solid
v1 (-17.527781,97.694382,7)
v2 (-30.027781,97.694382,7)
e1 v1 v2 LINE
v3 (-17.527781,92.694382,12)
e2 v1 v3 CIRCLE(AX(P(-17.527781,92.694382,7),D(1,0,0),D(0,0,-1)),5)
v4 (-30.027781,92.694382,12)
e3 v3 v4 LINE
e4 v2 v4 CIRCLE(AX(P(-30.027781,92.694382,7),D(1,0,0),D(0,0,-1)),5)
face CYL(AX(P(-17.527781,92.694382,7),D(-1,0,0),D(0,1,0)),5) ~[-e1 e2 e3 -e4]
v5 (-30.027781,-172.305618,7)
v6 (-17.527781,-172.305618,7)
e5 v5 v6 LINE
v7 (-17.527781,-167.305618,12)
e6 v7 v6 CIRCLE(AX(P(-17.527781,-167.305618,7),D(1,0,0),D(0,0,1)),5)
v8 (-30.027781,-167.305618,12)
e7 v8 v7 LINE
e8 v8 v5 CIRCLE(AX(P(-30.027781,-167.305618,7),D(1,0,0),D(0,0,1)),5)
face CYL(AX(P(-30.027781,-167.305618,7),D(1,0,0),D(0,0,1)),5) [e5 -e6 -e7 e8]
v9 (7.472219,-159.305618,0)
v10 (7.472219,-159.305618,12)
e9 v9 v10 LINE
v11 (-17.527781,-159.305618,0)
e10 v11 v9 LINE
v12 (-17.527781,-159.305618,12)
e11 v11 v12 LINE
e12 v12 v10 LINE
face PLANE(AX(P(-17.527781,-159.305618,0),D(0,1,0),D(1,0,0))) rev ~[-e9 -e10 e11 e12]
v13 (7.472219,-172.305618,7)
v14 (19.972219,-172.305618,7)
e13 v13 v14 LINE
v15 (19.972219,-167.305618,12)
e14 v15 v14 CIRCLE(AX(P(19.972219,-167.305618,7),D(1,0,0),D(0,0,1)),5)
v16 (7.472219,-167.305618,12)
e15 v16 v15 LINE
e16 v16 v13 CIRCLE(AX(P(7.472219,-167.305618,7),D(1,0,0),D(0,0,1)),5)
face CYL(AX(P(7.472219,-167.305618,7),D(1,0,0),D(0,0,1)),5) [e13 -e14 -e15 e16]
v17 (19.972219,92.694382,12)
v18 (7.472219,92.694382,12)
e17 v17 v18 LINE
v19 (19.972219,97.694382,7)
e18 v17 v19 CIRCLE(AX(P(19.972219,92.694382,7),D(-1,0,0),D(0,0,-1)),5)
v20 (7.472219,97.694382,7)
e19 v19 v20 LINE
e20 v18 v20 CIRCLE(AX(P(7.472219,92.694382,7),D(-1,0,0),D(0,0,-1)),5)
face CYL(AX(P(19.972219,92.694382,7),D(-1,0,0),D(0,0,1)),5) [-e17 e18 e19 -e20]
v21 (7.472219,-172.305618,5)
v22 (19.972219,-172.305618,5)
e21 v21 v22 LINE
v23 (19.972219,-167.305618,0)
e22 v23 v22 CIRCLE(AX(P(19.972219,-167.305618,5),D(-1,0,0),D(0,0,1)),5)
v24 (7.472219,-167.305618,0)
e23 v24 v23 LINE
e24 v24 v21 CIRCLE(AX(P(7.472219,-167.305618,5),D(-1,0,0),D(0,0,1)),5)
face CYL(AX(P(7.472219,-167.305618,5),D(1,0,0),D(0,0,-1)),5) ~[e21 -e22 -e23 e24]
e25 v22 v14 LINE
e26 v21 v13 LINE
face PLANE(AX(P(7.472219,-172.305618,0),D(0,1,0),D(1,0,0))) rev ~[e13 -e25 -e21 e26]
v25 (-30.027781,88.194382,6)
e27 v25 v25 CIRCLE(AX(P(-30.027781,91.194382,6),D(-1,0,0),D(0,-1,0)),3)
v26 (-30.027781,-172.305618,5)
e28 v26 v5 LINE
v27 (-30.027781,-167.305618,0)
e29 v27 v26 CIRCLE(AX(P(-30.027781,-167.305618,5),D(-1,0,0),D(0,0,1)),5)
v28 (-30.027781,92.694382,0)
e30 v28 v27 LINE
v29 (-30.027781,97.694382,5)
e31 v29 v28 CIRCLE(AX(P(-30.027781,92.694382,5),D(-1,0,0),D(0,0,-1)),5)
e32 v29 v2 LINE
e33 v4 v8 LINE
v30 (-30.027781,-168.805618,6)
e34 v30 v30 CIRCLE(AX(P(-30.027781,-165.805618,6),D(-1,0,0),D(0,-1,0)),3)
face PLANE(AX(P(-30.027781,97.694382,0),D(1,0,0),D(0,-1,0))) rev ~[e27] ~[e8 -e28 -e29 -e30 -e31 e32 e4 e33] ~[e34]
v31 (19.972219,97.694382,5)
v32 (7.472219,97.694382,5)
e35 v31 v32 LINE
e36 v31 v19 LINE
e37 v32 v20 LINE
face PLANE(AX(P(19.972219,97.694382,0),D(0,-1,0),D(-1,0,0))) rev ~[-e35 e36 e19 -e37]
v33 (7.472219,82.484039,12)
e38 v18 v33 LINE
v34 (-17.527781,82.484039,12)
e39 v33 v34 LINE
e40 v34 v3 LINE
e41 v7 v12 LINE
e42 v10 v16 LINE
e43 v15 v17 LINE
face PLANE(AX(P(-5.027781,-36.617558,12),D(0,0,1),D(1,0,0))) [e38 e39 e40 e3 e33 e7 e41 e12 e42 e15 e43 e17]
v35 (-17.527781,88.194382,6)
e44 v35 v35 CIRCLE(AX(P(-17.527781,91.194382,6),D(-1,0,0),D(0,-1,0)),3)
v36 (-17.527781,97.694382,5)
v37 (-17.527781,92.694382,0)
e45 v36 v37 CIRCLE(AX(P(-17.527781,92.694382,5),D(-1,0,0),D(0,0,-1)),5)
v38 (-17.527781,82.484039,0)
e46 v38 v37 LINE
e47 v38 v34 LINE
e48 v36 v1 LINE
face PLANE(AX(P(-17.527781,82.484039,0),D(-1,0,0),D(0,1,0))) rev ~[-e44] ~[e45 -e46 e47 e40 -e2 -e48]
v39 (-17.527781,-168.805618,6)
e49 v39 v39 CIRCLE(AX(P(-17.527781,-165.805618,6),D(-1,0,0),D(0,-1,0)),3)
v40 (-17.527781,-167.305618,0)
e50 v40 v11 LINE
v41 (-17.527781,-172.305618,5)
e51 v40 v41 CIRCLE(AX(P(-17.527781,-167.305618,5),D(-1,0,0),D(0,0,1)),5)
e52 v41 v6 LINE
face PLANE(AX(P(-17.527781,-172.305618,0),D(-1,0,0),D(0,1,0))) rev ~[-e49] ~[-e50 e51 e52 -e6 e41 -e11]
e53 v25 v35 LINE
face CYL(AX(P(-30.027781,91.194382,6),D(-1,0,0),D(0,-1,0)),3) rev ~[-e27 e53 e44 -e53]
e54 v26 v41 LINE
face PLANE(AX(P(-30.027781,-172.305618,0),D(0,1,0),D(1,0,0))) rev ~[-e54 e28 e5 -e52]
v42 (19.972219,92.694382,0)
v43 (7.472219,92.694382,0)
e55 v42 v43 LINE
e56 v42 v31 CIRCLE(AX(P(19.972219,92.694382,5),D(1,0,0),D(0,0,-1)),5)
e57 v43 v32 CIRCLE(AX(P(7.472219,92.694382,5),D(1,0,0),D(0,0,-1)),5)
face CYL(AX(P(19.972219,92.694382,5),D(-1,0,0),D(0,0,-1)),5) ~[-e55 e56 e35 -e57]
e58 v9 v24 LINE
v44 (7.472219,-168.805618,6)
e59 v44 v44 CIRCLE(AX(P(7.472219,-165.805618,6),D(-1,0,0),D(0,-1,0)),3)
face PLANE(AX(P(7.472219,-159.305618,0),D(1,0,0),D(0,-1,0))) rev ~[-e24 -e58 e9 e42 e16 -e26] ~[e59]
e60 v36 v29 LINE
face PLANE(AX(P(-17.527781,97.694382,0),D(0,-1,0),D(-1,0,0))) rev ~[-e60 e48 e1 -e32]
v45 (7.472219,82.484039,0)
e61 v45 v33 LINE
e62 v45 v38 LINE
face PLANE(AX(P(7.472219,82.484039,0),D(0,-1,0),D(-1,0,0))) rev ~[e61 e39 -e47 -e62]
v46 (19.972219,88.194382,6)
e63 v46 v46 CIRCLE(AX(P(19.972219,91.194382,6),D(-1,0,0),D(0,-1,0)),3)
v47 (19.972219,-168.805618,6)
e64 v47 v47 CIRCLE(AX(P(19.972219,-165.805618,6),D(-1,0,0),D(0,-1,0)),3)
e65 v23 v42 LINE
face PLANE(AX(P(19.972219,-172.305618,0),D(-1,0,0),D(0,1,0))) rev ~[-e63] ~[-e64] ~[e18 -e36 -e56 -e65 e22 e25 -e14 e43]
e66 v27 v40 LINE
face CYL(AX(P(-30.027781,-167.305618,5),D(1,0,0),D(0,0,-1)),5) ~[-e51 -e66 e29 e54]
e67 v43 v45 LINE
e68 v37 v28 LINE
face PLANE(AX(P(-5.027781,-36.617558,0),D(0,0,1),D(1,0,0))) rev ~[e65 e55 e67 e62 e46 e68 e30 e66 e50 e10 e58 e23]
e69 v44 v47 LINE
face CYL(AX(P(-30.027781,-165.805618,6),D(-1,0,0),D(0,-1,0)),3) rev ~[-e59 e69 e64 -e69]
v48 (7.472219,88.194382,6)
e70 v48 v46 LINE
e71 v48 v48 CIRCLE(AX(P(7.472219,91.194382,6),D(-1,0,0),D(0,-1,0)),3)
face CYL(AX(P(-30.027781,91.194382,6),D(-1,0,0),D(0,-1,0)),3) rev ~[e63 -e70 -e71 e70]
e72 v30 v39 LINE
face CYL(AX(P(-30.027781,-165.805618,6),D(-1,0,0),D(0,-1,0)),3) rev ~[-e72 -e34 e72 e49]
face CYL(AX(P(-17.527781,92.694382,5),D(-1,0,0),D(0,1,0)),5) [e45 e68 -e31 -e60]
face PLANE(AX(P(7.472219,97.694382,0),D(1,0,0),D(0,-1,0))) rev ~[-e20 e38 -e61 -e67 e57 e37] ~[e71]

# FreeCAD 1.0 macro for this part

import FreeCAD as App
import Part
import Sketcher
from FreeCAD import Vector
Q = App.Units.Quantity


def edges_at(feature, points):
    """Names of the edges that pass closest to the given points."""
    edges = feature.Shape.Edges
    near = lambda p: min(range(len(edges)), key=lambda i: edges[i].distToShape(Part.Vertex(*p))[0])
    return sorted({f"Edge{near(p) + 1}" for p in points})


def add_polygon(sketch, points):
    """Adds a closed chain of lines whose ends are joined by coincident constraints."""
    first, n = sketch.GeometryCount, len(points)
    for a, b in zip(points, points[1:] + points[:1]):
        sketch.addGeometry(Part.LineSegment(App.Vector(*a, 0), App.Vector(*b, 0)), False)
    for i in range(n):
        sketch.addConstraint(Sketcher.Constraint("Coincident", first + i, 2, first + (i + 1) % n, 1))

doc = App.newDocument("Part")
body = doc.addObject("PartDesign::Body", "Body")

sketch1 = doc.addObject("Sketcher::SketchObject", "Sketch")
body.addObject(sketch1)
sketch1.AttachmentSupport = (doc.XY_Plane, [""])
sketch1.MapMode = "FlatFace"
add_polygon(sketch1, [(-18, 98), (-30, 98), (-30, -172), (-18, -172), (-18, -159), (7, -159), (7, -172), (20, -172), (20, 98), (7, 98), (7, 82), (-18, 82)])
sketch1.addConstraint([
    Sketcher.Constraint("Horizontal", 0),
    Sketcher.Constraint("Vertical", 1),
    Sketcher.Constraint("Horizontal", 2),
    Sketcher.Constraint("Vertical", 3),
    Sketcher.Constraint("Horizontal", 4),
    Sketcher.Constraint("Vertical", 5),
    Sketcher.Constraint("Horizontal", 6),
    Sketcher.Constraint("Vertical", 7),
    Sketcher.Constraint("Horizontal", 8),
    Sketcher.Constraint("Vertical", 9),
    Sketcher.Constraint("Horizontal", 10),
    Sketcher.Constraint("Vertical", 11),
    Sketcher.Constraint("Horizontal", 2, 2, 5, 2),
    Sketcher.Constraint("Horizontal", 0, 2, 7, 2),
    Sketcher.Constraint("Vertical", 5, 2, 8, 2),
    Sketcher.Constraint("Vertical", 3, 2, 10, 2),
    Sketcher.Constraint("Equal", 2, 6),
    Sketcher.Constraint("DistanceX", 4, 1, 4, 2, Q("25 mm")),
    Sketcher.Constraint("DistanceY", 1, 2, 1, 1, Q("270 mm")),
    Sketcher.Constraint("DistanceY", 3, 1, 3, 2, Q("13 mm")),
    Sketcher.Constraint("DistanceX", 0, 2, 0, 1, Q("12.5 mm")),
    Sketcher.Constraint("DistanceY", 9, 2, 9, 1, Q("15.210343 mm")),
    Sketcher.Constraint("DistanceX", 0, 2, -1, 1, Q("30.027781 mm")),
    Sketcher.Constraint("DistanceY", 1, 2, -1, 1, Q("172.305618 mm")),
])
pad1 = doc.addObject("PartDesign::Pad", "Pad")
body.addObject(pad1)
pad1.Profile = sketch1
pad1.Length = 12

sketch2 = doc.addObject("Sketcher::SketchObject", "Sketch001")
body.addObject(sketch2)
sketch2.AttachmentSupport = (doc.YZ_Plane, [""])
sketch2.MapMode = "FlatFace"
sketch2.AttachmentOffset = App.Placement(Vector(0, 0, -30.027781), App.Rotation())
sketch2.addGeometry([
    Part.Circle(Vector(91.2, 6, 0), Vector(0, 0, 1), 3),
    Part.Circle(Vector(-165.8, 6, 0), Vector(0, 0, 1), 3),
], False)
sketch2.addConstraint([
    Sketcher.Constraint("Equal", 0, 1),
    Sketcher.Constraint("Horizontal", 0, 3, 1, 3),
    Sketcher.Constraint("Diameter", 0, Q("6 mm")),
    Sketcher.Constraint("DistanceY", -1, 1, 0, 3, Q("6 mm")),
    Sketcher.Constraint("DistanceX", 1, 3, 0, 3, Q("257 mm")),
    Sketcher.Constraint("DistanceX", 1, 3, -1, 1, Q("165.805618 mm")),
])
pocket1 = doc.addObject("PartDesign::Pocket", "Pocket")
body.addObject(pocket1)
pocket1.Profile = sketch2
pocket1.Type = "ThroughAll"
pocket1.Reversed = True
doc.recompute()

fillet = doc.addObject("PartDesign::Fillet", "Fillet")
body.addObject(fillet)
fillet.Base = (pocket1, edges_at(pocket1, [
    (-23.778, 97.694, 12),
    (-23.778, 97.694, 0),
    (13.722, 97.694, 12),
    (13.722, 97.694, 0),
    (-23.778, -172.306, 12),
    (13.722, -172.306, 12),
    (-23.778, -172.306, 0),
    (13.722, -172.306, 0),
]))
fillet.Radius = 5

doc.recompute()
